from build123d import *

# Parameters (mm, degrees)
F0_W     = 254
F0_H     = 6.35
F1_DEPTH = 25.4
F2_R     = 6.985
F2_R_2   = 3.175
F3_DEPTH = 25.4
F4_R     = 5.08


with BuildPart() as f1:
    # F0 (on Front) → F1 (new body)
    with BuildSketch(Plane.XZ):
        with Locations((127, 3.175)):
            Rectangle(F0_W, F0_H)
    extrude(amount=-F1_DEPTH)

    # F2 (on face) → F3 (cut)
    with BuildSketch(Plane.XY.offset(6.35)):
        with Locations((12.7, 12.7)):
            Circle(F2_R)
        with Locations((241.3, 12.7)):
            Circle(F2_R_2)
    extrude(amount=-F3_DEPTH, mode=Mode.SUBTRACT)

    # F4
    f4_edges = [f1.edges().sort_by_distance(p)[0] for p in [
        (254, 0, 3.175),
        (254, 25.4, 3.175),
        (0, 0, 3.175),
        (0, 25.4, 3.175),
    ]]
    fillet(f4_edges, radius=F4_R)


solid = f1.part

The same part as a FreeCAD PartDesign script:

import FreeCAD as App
import Part
import Sketcher

V = App.Vector
Q = App.Units.Quantity


def edges_at(feature, points):
    """Names of the edges that pass closest to the given points."""
    edges = feature.Shape.Edges
    near = lambda p: min(range(len(edges)), key=lambda i: edges[i].distToShape(Part.Vertex(*p))[0])
    return sorted({f"Edge{near(p) + 1}" for p in points})

doc = App.newDocument("Part")
body = doc.addObject("PartDesign::Body", "Body")

# Sketch on XZ plane
sketch1 = body.newObject("Sketcher::SketchObject", "Sketch")
sketch1.AttachmentSupport = (doc.getObject("XZ_Plane"), [""])
sketch1.MapMode = "FlatFace"
sketch1.addGeometry(Part.LineSegment(V(0, 6, 0), V(0, 0, 0)), False)
sketch1.addGeometry(Part.LineSegment(V(0, 0, 0), V(254, 0, 0)), False)
sketch1.addGeometry(Part.LineSegment(V(254, 0, 0), V(254, 6, 0)), False)
sketch1.addGeometry(Part.LineSegment(V(254, 6, 0), V(0, 6, 0)), False)
sketch1.addConstraint(Sketcher.Constraint("Coincident", 0, 2, 1, 1))
sketch1.addConstraint(Sketcher.Constraint("Coincident", 1, 2, 2, 1))
sketch1.addConstraint(Sketcher.Constraint("Coincident", 2, 2, 3, 1))
sketch1.addConstraint(Sketcher.Constraint("Coincident", 3, 2, 0, 1))
sketch1.addConstraint(Sketcher.Constraint("Vertical", 0))
sketch1.addConstraint(Sketcher.Constraint("Horizontal", 1))
sketch1.addConstraint(Sketcher.Constraint("Vertical", 2))
sketch1.addConstraint(Sketcher.Constraint("Horizontal", 3))
sketch1.addConstraint(Sketcher.Constraint("Coincident", 0, 2, -1, 1))
sketch1.addConstraint(Sketcher.Constraint("DistanceX", 1, 1, 1, 2, Q("10 in")))
sketch1.addConstraint(Sketcher.Constraint("DistanceY", 0, 2, 0, 1, Q("0.25 in")))
pad1 = body.newObject("PartDesign::Pad", "Pad")
pad1.Profile = sketch1
pad1.Length = Q("1 in")
pad1.Reversed = True

# Sketch on XY plane
sketch2 = body.newObject("Sketcher::SketchObject", "Sketch001")
sketch2.AttachmentSupport = (doc.getObject("XY_Plane"), [""])
sketch2.MapMode = "FlatFace"
sketch2.AttachmentOffset = App.Placement(V(0, 0, 0.25 * 25.4), App.Rotation())
sketch2.addGeometry(Part.Circle(V(12.7, 12.7, 0), V(0, 0, 1), 7), False)
sketch2.addGeometry(Part.Circle(V(241.3, 12.7, 0), V(0, 0, 1), 3.2), False)
sketch2.addConstraint(Sketcher.Constraint("Horizontal", 0, 3, 1, 3))
sketch2.addConstraint(Sketcher.Constraint("Diameter", 0, Q("0.55 in")))
sketch2.addConstraint(Sketcher.Constraint("Diameter", 1, Q("0.25 in")))
sketch2.addConstraint(Sketcher.Constraint("DistanceX", 0, 3, 1, 3, Q("9 in")))
sketch2.addConstraint(Sketcher.Constraint("DistanceX", -1, 1, 0, 3, Q("0.5 in")))
sketch2.addConstraint(Sketcher.Constraint("DistanceY", -1, 1, 0, 3, Q("0.5 in")))
pocket1 = body.newObject("PartDesign::Pocket", "Pocket")
pocket1.Profile = sketch2
pocket1.Length = Q("1 in")
doc.recompute()

fillet = body.newObject("PartDesign::Fillet", "Fillet")
fillet.Base = (pocket1, edges_at(pocket1, [
    (254, 0, 3.175),
    (254, 25.4, 3.175),
    (0, 0, 3.175),
    (0, 25.4, 3.175),
]))
fillet.Radius = Q("0.2 in")

doc.recompute()
